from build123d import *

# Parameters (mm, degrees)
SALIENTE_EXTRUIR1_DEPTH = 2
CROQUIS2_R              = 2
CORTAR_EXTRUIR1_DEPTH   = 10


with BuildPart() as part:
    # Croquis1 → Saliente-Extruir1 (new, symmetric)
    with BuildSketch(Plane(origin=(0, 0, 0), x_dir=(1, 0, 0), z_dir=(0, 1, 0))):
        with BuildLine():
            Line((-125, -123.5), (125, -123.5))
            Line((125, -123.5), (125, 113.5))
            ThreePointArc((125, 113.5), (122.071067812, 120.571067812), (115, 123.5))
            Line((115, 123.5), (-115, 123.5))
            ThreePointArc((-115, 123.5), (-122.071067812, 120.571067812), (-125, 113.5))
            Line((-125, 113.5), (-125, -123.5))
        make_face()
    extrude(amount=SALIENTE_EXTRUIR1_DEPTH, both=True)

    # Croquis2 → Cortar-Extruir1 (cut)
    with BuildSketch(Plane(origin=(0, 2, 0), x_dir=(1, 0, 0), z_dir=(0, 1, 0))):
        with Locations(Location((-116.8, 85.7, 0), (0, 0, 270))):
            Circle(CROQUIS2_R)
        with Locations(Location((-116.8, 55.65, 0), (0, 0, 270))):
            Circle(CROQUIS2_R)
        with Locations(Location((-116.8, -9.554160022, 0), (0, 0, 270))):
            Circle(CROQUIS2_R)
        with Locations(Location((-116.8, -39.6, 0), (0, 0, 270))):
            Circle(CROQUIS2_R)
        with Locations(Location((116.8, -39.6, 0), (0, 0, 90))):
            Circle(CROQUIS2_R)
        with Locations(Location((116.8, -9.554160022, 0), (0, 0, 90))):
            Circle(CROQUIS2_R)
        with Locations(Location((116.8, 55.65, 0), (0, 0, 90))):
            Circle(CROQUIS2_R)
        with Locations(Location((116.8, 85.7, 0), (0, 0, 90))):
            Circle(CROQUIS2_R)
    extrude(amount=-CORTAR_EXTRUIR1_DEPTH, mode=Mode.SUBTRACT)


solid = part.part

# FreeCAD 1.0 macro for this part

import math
import FreeCAD as App
import Part
import Sketcher
from FreeCAD import Vector

doc = App.newDocument("Part")
body = doc.addObject("PartDesign::Body", "Body")

# Sketch on XZ plane
sketch1 = doc.addObject("Sketcher::SketchObject", "Sketch")
body.addObject(sketch1)
sketch1.AttachmentSupport = (doc.XZ_Plane, [""])
sketch1.MapMode = "FlatFace"
sketch1.addGeometry(Part.LineSegment(Vector(-125, 123.5, 0), Vector(125, 123.5, 0)), False)
sketch1.addGeometry(Part.LineSegment(Vector(125, 123.5, 0), Vector(125, -113.5, 0)), False)
sketch1.addGeometry(Part.ArcOfCircle(Part.Circle(Vector(115, -113.5, 0), Vector(0, 0, 1), 10), math.radians(-90), math.radians(0)), False)
sketch1.addGeometry(Part.LineSegment(Vector(115, -123.5, 0), Vector(-115, -123.5, 0)), False)
sketch1.addGeometry(Part.ArcOfCircle(Part.Circle(Vector(-115, -113.5, 0), Vector(0, 0, 1), 10), math.radians(180), math.radians(270)), False)
sketch1.addGeometry(Part.LineSegment(Vector(-125, -113.5, 0), Vector(-125, 123.5, 0)), False)
sketch1.addConstraint(Sketcher.Constraint("Coincident", 0, 2, 1, 1))
sketch1.addConstraint(Sketcher.Constraint("Tangent", 1, 2, 2, 2))
sketch1.addConstraint(Sketcher.Constraint("Tangent", 2, 1, 3, 1))
sketch1.addConstraint(Sketcher.Constraint("Tangent", 3, 2, 4, 2))
sketch1.addConstraint(Sketcher.Constraint("Tangent", 4, 1, 5, 1))
sketch1.addConstraint(Sketcher.Constraint("Coincident", 5, 2, 0, 1))
sketch1.addConstraint(Sketcher.Constraint("Horizontal", 0))
sketch1.addConstraint(Sketcher.Constraint("Vertical", 1))
sketch1.addConstraint(Sketcher.Constraint("Horizontal", 3))
sketch1.addConstraint(Sketcher.Constraint("Vertical", 5))
sketch1.addConstraint(Sketcher.Constraint("Equal", 2, 4))
sketch1.addConstraint(Sketcher.Constraint("Radius", 2, 10.0))
sketch1.addConstraint(Sketcher.Constraint("DistanceX", 0, 1, 0, 2, 250.0))
sketch1.addConstraint(Sketcher.Constraint("DistanceY", 1, 2, 1, 1, 237.0))
sketch1.addConstraint(Sketcher.Constraint("DistanceX", -1, 1, 2, 3, 115.0))
sketch1.addConstraint(Sketcher.Constraint("DistanceY", 2, 3, -1, 1, 113.5))
pad1 = doc.addObject("PartDesign::Pad", "Pad")
body.addObject(pad1)
pad1.Profile = sketch1
pad1.Length = 4
pad1.Midplane = True

# Sketch on XZ plane
sketch2 = doc.addObject("Sketcher::SketchObject", "Sketch001")
body.addObject(sketch2)
sketch2.AttachmentSupport = (doc.XZ_Plane, [""])
sketch2.MapMode = "FlatFace"
sketch2.AttachmentOffset = App.Placement(Vector(0, 0, -2), App.Rotation())
sketch2.addGeometry(Part.Circle(Vector(-116.8, -85.7, 0), Vector(0, 0, 1), 2), False)
sketch2.addGeometry(Part.Circle(Vector(-116.8, -55.65, 0), Vector(0, 0, 1), 2), False)
sketch2.addGeometry(Part.Circle(Vector(-116.8, 9.55416, 0), Vector(0, 0, 1), 2), False)
sketch2.addGeometry(Part.Circle(Vector(-116.8, 39.6, 0), Vector(0, 0, 1), 2), False)
sketch2.addGeometry(Part.Circle(Vector(116.8, 39.6, 0), Vector(0, 0, 1), 2), False)
sketch2.addGeometry(Part.Circle(Vector(116.8, 9.55416, 0), Vector(0, 0, 1), 2), False)
sketch2.addGeometry(Part.Circle(Vector(116.8, -55.65, 0), Vector(0, 0, 1), 2), False)
sketch2.addGeometry(Part.Circle(Vector(116.8, -85.7, 0), Vector(0, 0, 1), 2), False)
sketch2.addConstraint(Sketcher.Constraint("Equal", 0, 1))
sketch2.addConstraint(Sketcher.Constraint("Equal", 1, 2))
sketch2.addConstraint(Sketcher.Constraint("Equal", 2, 3))
sketch2.addConstraint(Sketcher.Constraint("Equal", 3, 4))
sketch2.addConstraint(Sketcher.Constraint("Equal", 4, 5))
sketch2.addConstraint(Sketcher.Constraint("Equal", 5, 6))
sketch2.addConstraint(Sketcher.Constraint("Equal", 6, 7))
sketch2.addConstraint(Sketcher.Constraint("Symmetric", 3, 3, 4, 3, -2))
sketch2.addConstraint(Sketcher.Constraint("Symmetric", 2, 3, 5, 3, -2))
sketch2.addConstraint(Sketcher.Constraint("Symmetric", 1, 3, 6, 3, -2))
sketch2.addConstraint(Sketcher.Constraint("Symmetric", 0, 3, 7, 3, -2))
sketch2.addConstraint(Sketcher.Constraint("Vertical", 0, 3, 1, 3))
sketch2.addConstraint(Sketcher.Constraint("Vertical", 1, 3, 2, 3))
sketch2.addConstraint(Sketcher.Constraint("Vertical", 2, 3, 3, 3))
sketch2.addConstraint(Sketcher.Constraint("Diameter", 0, 4.0))
sketch2.addConstraint(Sketcher.Constraint("DistanceX", 0, 3, -1, 1, 116.8))
sketch2.addConstraint(Sketcher.Constraint("DistanceY", 0, 3, -1, 1, 85.7))
sketch2.addConstraint(Sketcher.Constraint("DistanceY", -1, 1, 3, 3, 39.6))
sketch2.addConstraint(Sketcher.Constraint("DistanceY", 1, 3, -1, 1, 55.65))
sketch2.addConstraint(Sketcher.Constraint("DistanceY", -1, 1, 2, 3, 9.55416))
pocket1 = doc.addObject("PartDesign::Pocket", "Pocket")
body.addObject(pocket1)
pocket1.Profile = sketch2
pocket1.Length = 10
pocket1.Reversed = True

doc.recompute()
